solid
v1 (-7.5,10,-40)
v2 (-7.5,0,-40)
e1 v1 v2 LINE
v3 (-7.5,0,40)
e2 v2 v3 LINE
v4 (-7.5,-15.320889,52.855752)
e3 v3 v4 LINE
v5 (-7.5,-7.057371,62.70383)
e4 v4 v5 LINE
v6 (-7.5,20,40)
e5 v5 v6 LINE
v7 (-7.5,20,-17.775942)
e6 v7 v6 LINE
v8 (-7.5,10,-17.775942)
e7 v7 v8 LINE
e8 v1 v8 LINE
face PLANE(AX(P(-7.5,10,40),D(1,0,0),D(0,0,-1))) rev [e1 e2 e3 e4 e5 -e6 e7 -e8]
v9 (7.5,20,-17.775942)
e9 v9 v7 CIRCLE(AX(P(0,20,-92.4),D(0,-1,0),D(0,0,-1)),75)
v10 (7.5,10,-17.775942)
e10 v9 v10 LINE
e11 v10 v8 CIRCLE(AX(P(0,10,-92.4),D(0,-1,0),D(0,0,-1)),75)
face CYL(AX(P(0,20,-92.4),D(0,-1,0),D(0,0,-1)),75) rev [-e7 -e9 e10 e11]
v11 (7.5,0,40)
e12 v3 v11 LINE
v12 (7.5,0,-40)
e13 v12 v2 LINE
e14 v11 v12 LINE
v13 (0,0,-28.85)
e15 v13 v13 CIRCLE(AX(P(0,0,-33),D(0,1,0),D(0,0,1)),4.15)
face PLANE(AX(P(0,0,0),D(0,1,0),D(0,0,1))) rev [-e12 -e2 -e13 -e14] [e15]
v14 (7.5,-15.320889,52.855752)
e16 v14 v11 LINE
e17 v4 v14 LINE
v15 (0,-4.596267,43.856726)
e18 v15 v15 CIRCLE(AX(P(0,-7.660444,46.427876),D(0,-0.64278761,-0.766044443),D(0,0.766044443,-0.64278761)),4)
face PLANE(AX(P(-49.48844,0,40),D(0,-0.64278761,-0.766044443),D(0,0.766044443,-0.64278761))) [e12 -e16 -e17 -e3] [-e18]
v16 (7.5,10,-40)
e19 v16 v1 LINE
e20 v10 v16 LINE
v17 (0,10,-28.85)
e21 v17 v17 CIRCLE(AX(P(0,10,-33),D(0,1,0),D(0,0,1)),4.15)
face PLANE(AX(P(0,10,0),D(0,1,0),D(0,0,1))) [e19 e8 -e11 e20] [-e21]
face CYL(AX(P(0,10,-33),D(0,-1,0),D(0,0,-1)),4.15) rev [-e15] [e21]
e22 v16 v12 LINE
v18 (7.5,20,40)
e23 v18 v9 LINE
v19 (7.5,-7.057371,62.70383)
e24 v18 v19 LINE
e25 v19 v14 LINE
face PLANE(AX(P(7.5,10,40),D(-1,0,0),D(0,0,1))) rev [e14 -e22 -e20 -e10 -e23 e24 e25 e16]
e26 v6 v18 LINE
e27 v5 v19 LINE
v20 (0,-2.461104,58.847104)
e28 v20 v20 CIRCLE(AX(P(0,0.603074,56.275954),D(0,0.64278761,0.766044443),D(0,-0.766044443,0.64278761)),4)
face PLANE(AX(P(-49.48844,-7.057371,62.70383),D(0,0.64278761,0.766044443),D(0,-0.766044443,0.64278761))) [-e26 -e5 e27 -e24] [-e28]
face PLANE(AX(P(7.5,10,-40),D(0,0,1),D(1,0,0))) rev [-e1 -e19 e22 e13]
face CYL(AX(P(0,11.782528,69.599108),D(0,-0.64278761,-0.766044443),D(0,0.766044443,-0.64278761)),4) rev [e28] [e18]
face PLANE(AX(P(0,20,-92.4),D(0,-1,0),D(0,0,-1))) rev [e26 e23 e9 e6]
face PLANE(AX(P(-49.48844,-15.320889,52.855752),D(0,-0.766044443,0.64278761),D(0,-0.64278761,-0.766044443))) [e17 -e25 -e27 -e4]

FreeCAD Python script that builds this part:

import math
import FreeCAD as App
import Part
import Sketcher
from FreeCAD import Vector
Q = App.Units.Quantity

doc = App.newDocument("Part")
params = doc.addObject("Spreadsheet::Sheet", "Params")
for row, (alias, value) in enumerate([
    ("sketch1_diameter", "8.3 mm"),
    ("sketch1_width", "15 mm"),
    ("sketch1_height", "80 mm"),
    ("pad1_length", "10 mm"),
    ("sketch2_radius", "75 mm"),
    ("sketch2_width", "15 mm"),
    ("pad2_length", "10 mm"),
    ("sketch3_width", "20 mm"),
    ("sketch3_length", "20 mm"),
    ("pad3_length", "15 mm"),
    ("sketch4_diameter", "8 mm"),
], start=1):
    params.set(f"A{row}", alias)
    params.set(f"B{row}", "=" + value)
    params.setAlias(f"B{row}", alias)

body = doc.addObject("PartDesign::Body", "Body")

# Sketch on XZ plane
sketch1 = body.newObject("Sketcher::SketchObject", "Sketch")
sketch1.AttachmentSupport = (doc.getObject("XZ_Plane"), [""])
sketch1.MapMode = "FlatFace"
sketch1.addGeometry([
    Part.LineSegment(Vector(-7.5, -40, 0), Vector(-7.5, 40, 0)),  # 0
    Part.LineSegment(Vector(-7.5, 40, 0), Vector(7.5, 40, 0)),  # 1
    Part.LineSegment(Vector(7.5, 40, 0), Vector(7.5, -40, 0)),  # 2
    Part.LineSegment(Vector(7.5, -40, 0), Vector(-7.5, -40, 0)),  # 3
    Part.Circle(Vector(0, -33, 0), Vector(0, 0, 1), 4.15),  # 4
], False)
sketch1.addConstraint([
    Sketcher.Constraint("Coincident", 0, 2, 1, 1),
    Sketcher.Constraint("Coincident", 1, 2, 2, 1),
    Sketcher.Constraint("Coincident", 2, 2, 3, 1),
    Sketcher.Constraint("Coincident", 3, 2, 0, 1),
    Sketcher.Constraint("Vertical", 0),
    Sketcher.Constraint("Horizontal", 1),
    Sketcher.Constraint("Vertical", 2),
    Sketcher.Constraint("Horizontal", 3),
    Sketcher.Constraint("Symmetric", 0, 2, 2, 2, -1, 1),
    Sketcher.Constraint("PointOnObject", 4, 3, -2),
    Sketcher.Constraint("Diameter", 4, Q("8.3 mm")),
    Sketcher.Constraint("DistanceX", 1, 1, 1, 2, Q("15 mm")),
    Sketcher.Constraint("DistanceY", 0, 1, 0, 2, Q("80 mm")),
    Sketcher.Constraint("DistanceY", 4, 3, -1, 1, Q("33 mm")),
])
sketch1.setExpression("Constraints[10]", "Params.sketch1_diameter")
sketch1.setExpression("Constraints[11]", "Params.sketch1_width")
sketch1.setExpression("Constraints[12]", "Params.sketch1_height")
pad1 = body.newObject("PartDesign::Pad", "Pad")
pad1.Profile = sketch1
pad1.setExpression("Length", "Params.pad1_length")
pad1.Reversed = True

# Sketch on XZ plane
sketch2 = body.newObject("Sketcher::SketchObject", "Sketch001")
sketch2.AttachmentSupport = (doc.getObject("XZ_Plane"), [""])
sketch2.MapMode = "FlatFace"
sketch2.AttachmentOffset = App.Placement(Vector(0, 0, -10), App.Rotation())
sketch2.addGeometry([
    Part.LineSegment(Vector(7.5, 40, 0), Vector(7.5, -17.775942, 0)),
    Part.ArcOfCircle(Part.Circle(Vector(0, -92.4, 0), Vector(0, 0, 1), 75), math.radians(84.26083), math.radians(95.73917)),
    Part.LineSegment(Vector(-7.5, -17.775942, 0), Vector(-7.5, 40, 0)),
    Part.LineSegment(Vector(-7.5, 40, 0), Vector(7.5, 40, 0)),
], False)
sketch2.addConstraint([
    Sketcher.Constraint("Coincident", 0, 2, 1, 1),
    Sketcher.Constraint("Coincident", 1, 2, 2, 1),
    Sketcher.Constraint("Coincident", 2, 2, 3, 1),
    Sketcher.Constraint("Coincident", 3, 2, 0, 1),
    Sketcher.Constraint("Vertical", 0),
    Sketcher.Constraint("Vertical", 2),
    Sketcher.Constraint("Horizontal", 3),
    Sketcher.Constraint("Symmetric", 0, 2, 1, 2, -2),
    Sketcher.Constraint("Radius", 1, Q("75 mm")),
    Sketcher.Constraint("DistanceX", 3, 1, 3, 2, Q("15 mm")),
    Sketcher.Constraint("DistanceY", -1, 1, 2, 2, Q("40 mm")),
    Sketcher.Constraint("DistanceY", 1, 3, -1, 1, Q("92.4 mm")),
])
sketch2.setExpression("Constraints[8]", "Params.sketch2_radius")
sketch2.setExpression("Constraints[9]", "Params.sketch2_width")
pad2 = body.newObject("PartDesign::Pad", "Pad001")
pad2.Profile = sketch2
pad2.setExpression("Length", "Params.pad2_length")
pad2.Reversed = True

# Sketch on YZ plane
sketch3 = body.newObject("Sketcher::SketchObject", "Sketch002")
sketch3.AttachmentSupport = (doc.getObject("YZ_Plane"), [""])
sketch3.MapMode = "FlatFace"
sketch3.AttachmentOffset = App.Placement(Vector(0, 0, 7.5), App.Rotation())
sketch3.addGeometry([
    Part.LineSegment(Vector(-15.320889, 52.855752, 0), Vector(0, 40, 0)),
    Part.LineSegment(Vector(0, 40, 0), Vector(20, 40, 0)),
    Part.LineSegment(Vector(20, 40, 0), Vector(-7.057371, 62.70383, 0)),
    Part.LineSegment(Vector(-7.057371, 62.70383, 0), Vector(-15.320889, 52.855752, 0)),
], False)
sketch3.addConstraint([
    Sketcher.Constraint("Coincident", 0, 2, 1, 1),
    Sketcher.Constraint("Coincident", 1, 2, 2, 1),
    Sketcher.Constraint("Coincident", 2, 2, 3, 1),
    Sketcher.Constraint("Coincident", 3, 2, 0, 1),
    Sketcher.Constraint("Horizontal", 1),
    Sketcher.Constraint("PointOnObject", 0, 2, -2),
    Sketcher.Constraint("Parallel", 0, 2),
    Sketcher.Constraint("Perpendicular", 2, 3),
    Sketcher.Constraint("DistanceX", 1, 1, 1, 2, Q("20 mm")),
    Sketcher.Constraint("Angle", 0, Q("-40 deg")),
    Sketcher.Constraint("Distance", 0, Q("20 mm")),
    Sketcher.Constraint("DistanceY", -1, 1, 0, 2, Q("40 mm")),
])
sketch3.setExpression("Constraints[8]", "Params.sketch3_width")
sketch3.setExpression("Constraints[10]", "Params.sketch3_length")
pad3 = body.newObject("PartDesign::Pad", "Pad002")
pad3.Profile = sketch3
pad3.setExpression("Length", "Params.pad3_length")
pad3.Reversed = True

# Sketch on an angled plane
sketch4 = body.newObject("Sketcher::SketchObject", "Sketch003")
sketch4.Placement = App.Placement(Vector(0, 19.696155, 23.472964), App.Rotation(Vector(-1, 0, 0), Vector(0, 0.766044443, -0.64278761), Vector(0, -0.64278761, -0.766044443), "ZXY"))
sketch4.addGeometry(Part.Circle(Vector(0, -35.711504, 0), Vector(0, 0, 1), 4), False)
sketch4.addConstraint([
    Sketcher.Constraint("PointOnObject", 0, 3, -2),
    Sketcher.Constraint("Diameter", 0, Q("8 mm")),
    Sketcher.Constraint("DistanceY", 0, 3, -1, 1, Q("35.711504 mm")),
])
sketch4.setExpression("Constraints[1]", "Params.sketch4_diameter")
pocket1 = body.newObject("PartDesign::Pocket", "Pocket")
pocket1.Profile = sketch4
pocket1.Type = "ThroughAll"

doc.recompute()
